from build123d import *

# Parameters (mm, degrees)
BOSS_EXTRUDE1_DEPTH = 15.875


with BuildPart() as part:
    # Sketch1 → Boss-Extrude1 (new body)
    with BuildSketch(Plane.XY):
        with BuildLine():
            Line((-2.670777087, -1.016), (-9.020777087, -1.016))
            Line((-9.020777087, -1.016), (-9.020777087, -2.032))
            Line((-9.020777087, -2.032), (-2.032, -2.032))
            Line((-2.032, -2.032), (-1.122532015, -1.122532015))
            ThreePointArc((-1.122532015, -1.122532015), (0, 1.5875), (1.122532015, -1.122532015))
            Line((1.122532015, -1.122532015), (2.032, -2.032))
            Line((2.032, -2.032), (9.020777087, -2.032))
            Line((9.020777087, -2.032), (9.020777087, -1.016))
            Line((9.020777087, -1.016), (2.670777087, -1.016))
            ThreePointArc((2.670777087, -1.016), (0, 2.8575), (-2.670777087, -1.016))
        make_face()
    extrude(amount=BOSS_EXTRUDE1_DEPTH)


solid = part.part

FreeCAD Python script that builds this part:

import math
import FreeCAD as App
import Part
import Sketcher

V = App.Vector
Q = App.Units.Quantity

doc = App.newDocument("Part")
params = doc.addObject("Spreadsheet::Sheet", "Params")
for row, (alias, value) in enumerate([
    ("sketch1_radius", "0.0625 in"),
    ("sketch1_width", "0.25 in"),
    ("sketch1_height", "0.04 in"),
    ("pad1_length", "0.625 in"),
], start=1):
    params.set(f"A{row}", alias)
    params.set(f"B{row}", "=" + value)
    params.setAlias(f"B{row}", alias)

body = doc.addObject("PartDesign::Body", "Body")

# Sketch on XY plane
sketch1 = doc.addObject("Sketcher::SketchObject", "Sketch")
body.addObject(sketch1)
sketch1.AttachmentSupport = (doc.XY_Plane, [""])
sketch1.MapMode = "FlatFace"
sketch1.addGeometry(Part.LineSegment(V(-2.670777, -1.016, 0), V(-9.020777, -1.016, 0)), False)
sketch1.addGeometry(Part.LineSegment(V(-9.020777, -1.016, 0), V(-9.020777, -2.032, 0)), False)
sketch1.addGeometry(Part.LineSegment(V(-9.020777, -2.032, 0), V(-2.032, -2.032, 0)), False)
sketch1.addGeometry(Part.LineSegment(V(-2.032, -2.032, 0), V(-1.122532, -1.122532, 0)), False)
sketch1.addGeometry(Part.ArcOfCircle(Part.Circle(V(0, 0, 0), V(0, 0, 1), 1.5875), math.radians(-45), math.radians(225)), False)
sketch1.addGeometry(Part.LineSegment(V(1.122532, -1.122532, 0), V(2.032, -2.032, 0)), False)
sketch1.addGeometry(Part.LineSegment(V(2.032, -2.032, 0), V(9.020777, -2.032, 0)), False)
sketch1.addGeometry(Part.LineSegment(V(9.020777, -2.032, 0), V(9.020777, -1.016, 0)), False)
sketch1.addGeometry(Part.LineSegment(V(9.020777, -1.016, 0), V(2.670777, -1.016, 0)), False)
sketch1.addGeometry(Part.ArcOfCircle(Part.Circle(V(0, 0, 0), V(0, 0, 1), 2.8575), math.radians(-20.827497), math.radians(200.827497)), False)
sketch1.addConstraint(Sketcher.Constraint("Coincident", 0, 2, 1, 1))
sketch1.addConstraint(Sketcher.Constraint("Coincident", 1, 2, 2, 1))
sketch1.addConstraint(Sketcher.Constraint("Coincident", 2, 2, 3, 1))
sketch1.addConstraint(Sketcher.Constraint("Coincident", 3, 2, 4, 2))
sketch1.addConstraint(Sketcher.Constraint("Coincident", 4, 1, 5, 1))
sketch1.addConstraint(Sketcher.Constraint("Coincident", 5, 2, 6, 1))
sketch1.addConstraint(Sketcher.Constraint("Coincident", 6, 2, 7, 1))
sketch1.addConstraint(Sketcher.Constraint("Coincident", 7, 2, 8, 1))
sketch1.addConstraint(Sketcher.Constraint("Coincident", 8, 2, 9, 1))
sketch1.addConstraint(Sketcher.Constraint("Coincident", 9, 2, 0, 1))
sketch1.addConstraint(Sketcher.Constraint("Horizontal", 0))
sketch1.addConstraint(Sketcher.Constraint("Vertical", 1))
sketch1.addConstraint(Sketcher.Constraint("Horizontal", 2))
sketch1.addConstraint(Sketcher.Constraint("Horizontal", 6))
sketch1.addConstraint(Sketcher.Constraint("Vertical", 7))
sketch1.addConstraint(Sketcher.Constraint("Horizontal", 8))
sketch1.addConstraint(Sketcher.Constraint("Coincident", 4, 3, -1, 1))
sketch1.addConstraint(Sketcher.Constraint("Coincident", 9, 3, -1, 1))
sketch1.addConstraint(Sketcher.Constraint("Symmetric", 2, 2, 5, 2, -2))
sketch1.addConstraint(Sketcher.Constraint("Symmetric", 0, 2, 7, 2, -2))
sketch1.addConstraint(Sketcher.Constraint("Perpendicular", 3, 5))
sketch1.addConstraint(Sketcher.Constraint("Horizontal", 3, 2, 4, 1))
sketch1.addConstraint(Sketcher.Constraint("Radius", 4, Q("0.0625 in")))
sketch1.addConstraint(Sketcher.Constraint("DistanceX", 0, 2, 0, 1, Q("0.25 in")))
sketch1.addConstraint(Sketcher.Constraint("DistanceY", 1, 2, 1, 1, Q("0.04 in")))
sketch1.addConstraint(Sketcher.Constraint("Radius", 9, Q("0.1125 in")))
sketch1.addConstraint(Sketcher.Constraint("DistanceY", 0, 2, -1, 1, Q("0.04 in")))
sketch1.addConstraint(Sketcher.Constraint("DistanceX", 2, 2, -1, 1, Q("0.08 in")))
sketch1.setExpression("Constraints[22]", "Params.sketch1_radius")
sketch1.setExpression("Constraints[23]", "Params.sketch1_width")
sketch1.setExpression("Constraints[24]", "Params.sketch1_height")
pad1 = doc.addObject("PartDesign::Pad", "Pad")
body.addObject(pad1)
pad1.Profile = sketch1
pad1.setExpression("Length", "Params.pad1_length")

doc.recompute()
